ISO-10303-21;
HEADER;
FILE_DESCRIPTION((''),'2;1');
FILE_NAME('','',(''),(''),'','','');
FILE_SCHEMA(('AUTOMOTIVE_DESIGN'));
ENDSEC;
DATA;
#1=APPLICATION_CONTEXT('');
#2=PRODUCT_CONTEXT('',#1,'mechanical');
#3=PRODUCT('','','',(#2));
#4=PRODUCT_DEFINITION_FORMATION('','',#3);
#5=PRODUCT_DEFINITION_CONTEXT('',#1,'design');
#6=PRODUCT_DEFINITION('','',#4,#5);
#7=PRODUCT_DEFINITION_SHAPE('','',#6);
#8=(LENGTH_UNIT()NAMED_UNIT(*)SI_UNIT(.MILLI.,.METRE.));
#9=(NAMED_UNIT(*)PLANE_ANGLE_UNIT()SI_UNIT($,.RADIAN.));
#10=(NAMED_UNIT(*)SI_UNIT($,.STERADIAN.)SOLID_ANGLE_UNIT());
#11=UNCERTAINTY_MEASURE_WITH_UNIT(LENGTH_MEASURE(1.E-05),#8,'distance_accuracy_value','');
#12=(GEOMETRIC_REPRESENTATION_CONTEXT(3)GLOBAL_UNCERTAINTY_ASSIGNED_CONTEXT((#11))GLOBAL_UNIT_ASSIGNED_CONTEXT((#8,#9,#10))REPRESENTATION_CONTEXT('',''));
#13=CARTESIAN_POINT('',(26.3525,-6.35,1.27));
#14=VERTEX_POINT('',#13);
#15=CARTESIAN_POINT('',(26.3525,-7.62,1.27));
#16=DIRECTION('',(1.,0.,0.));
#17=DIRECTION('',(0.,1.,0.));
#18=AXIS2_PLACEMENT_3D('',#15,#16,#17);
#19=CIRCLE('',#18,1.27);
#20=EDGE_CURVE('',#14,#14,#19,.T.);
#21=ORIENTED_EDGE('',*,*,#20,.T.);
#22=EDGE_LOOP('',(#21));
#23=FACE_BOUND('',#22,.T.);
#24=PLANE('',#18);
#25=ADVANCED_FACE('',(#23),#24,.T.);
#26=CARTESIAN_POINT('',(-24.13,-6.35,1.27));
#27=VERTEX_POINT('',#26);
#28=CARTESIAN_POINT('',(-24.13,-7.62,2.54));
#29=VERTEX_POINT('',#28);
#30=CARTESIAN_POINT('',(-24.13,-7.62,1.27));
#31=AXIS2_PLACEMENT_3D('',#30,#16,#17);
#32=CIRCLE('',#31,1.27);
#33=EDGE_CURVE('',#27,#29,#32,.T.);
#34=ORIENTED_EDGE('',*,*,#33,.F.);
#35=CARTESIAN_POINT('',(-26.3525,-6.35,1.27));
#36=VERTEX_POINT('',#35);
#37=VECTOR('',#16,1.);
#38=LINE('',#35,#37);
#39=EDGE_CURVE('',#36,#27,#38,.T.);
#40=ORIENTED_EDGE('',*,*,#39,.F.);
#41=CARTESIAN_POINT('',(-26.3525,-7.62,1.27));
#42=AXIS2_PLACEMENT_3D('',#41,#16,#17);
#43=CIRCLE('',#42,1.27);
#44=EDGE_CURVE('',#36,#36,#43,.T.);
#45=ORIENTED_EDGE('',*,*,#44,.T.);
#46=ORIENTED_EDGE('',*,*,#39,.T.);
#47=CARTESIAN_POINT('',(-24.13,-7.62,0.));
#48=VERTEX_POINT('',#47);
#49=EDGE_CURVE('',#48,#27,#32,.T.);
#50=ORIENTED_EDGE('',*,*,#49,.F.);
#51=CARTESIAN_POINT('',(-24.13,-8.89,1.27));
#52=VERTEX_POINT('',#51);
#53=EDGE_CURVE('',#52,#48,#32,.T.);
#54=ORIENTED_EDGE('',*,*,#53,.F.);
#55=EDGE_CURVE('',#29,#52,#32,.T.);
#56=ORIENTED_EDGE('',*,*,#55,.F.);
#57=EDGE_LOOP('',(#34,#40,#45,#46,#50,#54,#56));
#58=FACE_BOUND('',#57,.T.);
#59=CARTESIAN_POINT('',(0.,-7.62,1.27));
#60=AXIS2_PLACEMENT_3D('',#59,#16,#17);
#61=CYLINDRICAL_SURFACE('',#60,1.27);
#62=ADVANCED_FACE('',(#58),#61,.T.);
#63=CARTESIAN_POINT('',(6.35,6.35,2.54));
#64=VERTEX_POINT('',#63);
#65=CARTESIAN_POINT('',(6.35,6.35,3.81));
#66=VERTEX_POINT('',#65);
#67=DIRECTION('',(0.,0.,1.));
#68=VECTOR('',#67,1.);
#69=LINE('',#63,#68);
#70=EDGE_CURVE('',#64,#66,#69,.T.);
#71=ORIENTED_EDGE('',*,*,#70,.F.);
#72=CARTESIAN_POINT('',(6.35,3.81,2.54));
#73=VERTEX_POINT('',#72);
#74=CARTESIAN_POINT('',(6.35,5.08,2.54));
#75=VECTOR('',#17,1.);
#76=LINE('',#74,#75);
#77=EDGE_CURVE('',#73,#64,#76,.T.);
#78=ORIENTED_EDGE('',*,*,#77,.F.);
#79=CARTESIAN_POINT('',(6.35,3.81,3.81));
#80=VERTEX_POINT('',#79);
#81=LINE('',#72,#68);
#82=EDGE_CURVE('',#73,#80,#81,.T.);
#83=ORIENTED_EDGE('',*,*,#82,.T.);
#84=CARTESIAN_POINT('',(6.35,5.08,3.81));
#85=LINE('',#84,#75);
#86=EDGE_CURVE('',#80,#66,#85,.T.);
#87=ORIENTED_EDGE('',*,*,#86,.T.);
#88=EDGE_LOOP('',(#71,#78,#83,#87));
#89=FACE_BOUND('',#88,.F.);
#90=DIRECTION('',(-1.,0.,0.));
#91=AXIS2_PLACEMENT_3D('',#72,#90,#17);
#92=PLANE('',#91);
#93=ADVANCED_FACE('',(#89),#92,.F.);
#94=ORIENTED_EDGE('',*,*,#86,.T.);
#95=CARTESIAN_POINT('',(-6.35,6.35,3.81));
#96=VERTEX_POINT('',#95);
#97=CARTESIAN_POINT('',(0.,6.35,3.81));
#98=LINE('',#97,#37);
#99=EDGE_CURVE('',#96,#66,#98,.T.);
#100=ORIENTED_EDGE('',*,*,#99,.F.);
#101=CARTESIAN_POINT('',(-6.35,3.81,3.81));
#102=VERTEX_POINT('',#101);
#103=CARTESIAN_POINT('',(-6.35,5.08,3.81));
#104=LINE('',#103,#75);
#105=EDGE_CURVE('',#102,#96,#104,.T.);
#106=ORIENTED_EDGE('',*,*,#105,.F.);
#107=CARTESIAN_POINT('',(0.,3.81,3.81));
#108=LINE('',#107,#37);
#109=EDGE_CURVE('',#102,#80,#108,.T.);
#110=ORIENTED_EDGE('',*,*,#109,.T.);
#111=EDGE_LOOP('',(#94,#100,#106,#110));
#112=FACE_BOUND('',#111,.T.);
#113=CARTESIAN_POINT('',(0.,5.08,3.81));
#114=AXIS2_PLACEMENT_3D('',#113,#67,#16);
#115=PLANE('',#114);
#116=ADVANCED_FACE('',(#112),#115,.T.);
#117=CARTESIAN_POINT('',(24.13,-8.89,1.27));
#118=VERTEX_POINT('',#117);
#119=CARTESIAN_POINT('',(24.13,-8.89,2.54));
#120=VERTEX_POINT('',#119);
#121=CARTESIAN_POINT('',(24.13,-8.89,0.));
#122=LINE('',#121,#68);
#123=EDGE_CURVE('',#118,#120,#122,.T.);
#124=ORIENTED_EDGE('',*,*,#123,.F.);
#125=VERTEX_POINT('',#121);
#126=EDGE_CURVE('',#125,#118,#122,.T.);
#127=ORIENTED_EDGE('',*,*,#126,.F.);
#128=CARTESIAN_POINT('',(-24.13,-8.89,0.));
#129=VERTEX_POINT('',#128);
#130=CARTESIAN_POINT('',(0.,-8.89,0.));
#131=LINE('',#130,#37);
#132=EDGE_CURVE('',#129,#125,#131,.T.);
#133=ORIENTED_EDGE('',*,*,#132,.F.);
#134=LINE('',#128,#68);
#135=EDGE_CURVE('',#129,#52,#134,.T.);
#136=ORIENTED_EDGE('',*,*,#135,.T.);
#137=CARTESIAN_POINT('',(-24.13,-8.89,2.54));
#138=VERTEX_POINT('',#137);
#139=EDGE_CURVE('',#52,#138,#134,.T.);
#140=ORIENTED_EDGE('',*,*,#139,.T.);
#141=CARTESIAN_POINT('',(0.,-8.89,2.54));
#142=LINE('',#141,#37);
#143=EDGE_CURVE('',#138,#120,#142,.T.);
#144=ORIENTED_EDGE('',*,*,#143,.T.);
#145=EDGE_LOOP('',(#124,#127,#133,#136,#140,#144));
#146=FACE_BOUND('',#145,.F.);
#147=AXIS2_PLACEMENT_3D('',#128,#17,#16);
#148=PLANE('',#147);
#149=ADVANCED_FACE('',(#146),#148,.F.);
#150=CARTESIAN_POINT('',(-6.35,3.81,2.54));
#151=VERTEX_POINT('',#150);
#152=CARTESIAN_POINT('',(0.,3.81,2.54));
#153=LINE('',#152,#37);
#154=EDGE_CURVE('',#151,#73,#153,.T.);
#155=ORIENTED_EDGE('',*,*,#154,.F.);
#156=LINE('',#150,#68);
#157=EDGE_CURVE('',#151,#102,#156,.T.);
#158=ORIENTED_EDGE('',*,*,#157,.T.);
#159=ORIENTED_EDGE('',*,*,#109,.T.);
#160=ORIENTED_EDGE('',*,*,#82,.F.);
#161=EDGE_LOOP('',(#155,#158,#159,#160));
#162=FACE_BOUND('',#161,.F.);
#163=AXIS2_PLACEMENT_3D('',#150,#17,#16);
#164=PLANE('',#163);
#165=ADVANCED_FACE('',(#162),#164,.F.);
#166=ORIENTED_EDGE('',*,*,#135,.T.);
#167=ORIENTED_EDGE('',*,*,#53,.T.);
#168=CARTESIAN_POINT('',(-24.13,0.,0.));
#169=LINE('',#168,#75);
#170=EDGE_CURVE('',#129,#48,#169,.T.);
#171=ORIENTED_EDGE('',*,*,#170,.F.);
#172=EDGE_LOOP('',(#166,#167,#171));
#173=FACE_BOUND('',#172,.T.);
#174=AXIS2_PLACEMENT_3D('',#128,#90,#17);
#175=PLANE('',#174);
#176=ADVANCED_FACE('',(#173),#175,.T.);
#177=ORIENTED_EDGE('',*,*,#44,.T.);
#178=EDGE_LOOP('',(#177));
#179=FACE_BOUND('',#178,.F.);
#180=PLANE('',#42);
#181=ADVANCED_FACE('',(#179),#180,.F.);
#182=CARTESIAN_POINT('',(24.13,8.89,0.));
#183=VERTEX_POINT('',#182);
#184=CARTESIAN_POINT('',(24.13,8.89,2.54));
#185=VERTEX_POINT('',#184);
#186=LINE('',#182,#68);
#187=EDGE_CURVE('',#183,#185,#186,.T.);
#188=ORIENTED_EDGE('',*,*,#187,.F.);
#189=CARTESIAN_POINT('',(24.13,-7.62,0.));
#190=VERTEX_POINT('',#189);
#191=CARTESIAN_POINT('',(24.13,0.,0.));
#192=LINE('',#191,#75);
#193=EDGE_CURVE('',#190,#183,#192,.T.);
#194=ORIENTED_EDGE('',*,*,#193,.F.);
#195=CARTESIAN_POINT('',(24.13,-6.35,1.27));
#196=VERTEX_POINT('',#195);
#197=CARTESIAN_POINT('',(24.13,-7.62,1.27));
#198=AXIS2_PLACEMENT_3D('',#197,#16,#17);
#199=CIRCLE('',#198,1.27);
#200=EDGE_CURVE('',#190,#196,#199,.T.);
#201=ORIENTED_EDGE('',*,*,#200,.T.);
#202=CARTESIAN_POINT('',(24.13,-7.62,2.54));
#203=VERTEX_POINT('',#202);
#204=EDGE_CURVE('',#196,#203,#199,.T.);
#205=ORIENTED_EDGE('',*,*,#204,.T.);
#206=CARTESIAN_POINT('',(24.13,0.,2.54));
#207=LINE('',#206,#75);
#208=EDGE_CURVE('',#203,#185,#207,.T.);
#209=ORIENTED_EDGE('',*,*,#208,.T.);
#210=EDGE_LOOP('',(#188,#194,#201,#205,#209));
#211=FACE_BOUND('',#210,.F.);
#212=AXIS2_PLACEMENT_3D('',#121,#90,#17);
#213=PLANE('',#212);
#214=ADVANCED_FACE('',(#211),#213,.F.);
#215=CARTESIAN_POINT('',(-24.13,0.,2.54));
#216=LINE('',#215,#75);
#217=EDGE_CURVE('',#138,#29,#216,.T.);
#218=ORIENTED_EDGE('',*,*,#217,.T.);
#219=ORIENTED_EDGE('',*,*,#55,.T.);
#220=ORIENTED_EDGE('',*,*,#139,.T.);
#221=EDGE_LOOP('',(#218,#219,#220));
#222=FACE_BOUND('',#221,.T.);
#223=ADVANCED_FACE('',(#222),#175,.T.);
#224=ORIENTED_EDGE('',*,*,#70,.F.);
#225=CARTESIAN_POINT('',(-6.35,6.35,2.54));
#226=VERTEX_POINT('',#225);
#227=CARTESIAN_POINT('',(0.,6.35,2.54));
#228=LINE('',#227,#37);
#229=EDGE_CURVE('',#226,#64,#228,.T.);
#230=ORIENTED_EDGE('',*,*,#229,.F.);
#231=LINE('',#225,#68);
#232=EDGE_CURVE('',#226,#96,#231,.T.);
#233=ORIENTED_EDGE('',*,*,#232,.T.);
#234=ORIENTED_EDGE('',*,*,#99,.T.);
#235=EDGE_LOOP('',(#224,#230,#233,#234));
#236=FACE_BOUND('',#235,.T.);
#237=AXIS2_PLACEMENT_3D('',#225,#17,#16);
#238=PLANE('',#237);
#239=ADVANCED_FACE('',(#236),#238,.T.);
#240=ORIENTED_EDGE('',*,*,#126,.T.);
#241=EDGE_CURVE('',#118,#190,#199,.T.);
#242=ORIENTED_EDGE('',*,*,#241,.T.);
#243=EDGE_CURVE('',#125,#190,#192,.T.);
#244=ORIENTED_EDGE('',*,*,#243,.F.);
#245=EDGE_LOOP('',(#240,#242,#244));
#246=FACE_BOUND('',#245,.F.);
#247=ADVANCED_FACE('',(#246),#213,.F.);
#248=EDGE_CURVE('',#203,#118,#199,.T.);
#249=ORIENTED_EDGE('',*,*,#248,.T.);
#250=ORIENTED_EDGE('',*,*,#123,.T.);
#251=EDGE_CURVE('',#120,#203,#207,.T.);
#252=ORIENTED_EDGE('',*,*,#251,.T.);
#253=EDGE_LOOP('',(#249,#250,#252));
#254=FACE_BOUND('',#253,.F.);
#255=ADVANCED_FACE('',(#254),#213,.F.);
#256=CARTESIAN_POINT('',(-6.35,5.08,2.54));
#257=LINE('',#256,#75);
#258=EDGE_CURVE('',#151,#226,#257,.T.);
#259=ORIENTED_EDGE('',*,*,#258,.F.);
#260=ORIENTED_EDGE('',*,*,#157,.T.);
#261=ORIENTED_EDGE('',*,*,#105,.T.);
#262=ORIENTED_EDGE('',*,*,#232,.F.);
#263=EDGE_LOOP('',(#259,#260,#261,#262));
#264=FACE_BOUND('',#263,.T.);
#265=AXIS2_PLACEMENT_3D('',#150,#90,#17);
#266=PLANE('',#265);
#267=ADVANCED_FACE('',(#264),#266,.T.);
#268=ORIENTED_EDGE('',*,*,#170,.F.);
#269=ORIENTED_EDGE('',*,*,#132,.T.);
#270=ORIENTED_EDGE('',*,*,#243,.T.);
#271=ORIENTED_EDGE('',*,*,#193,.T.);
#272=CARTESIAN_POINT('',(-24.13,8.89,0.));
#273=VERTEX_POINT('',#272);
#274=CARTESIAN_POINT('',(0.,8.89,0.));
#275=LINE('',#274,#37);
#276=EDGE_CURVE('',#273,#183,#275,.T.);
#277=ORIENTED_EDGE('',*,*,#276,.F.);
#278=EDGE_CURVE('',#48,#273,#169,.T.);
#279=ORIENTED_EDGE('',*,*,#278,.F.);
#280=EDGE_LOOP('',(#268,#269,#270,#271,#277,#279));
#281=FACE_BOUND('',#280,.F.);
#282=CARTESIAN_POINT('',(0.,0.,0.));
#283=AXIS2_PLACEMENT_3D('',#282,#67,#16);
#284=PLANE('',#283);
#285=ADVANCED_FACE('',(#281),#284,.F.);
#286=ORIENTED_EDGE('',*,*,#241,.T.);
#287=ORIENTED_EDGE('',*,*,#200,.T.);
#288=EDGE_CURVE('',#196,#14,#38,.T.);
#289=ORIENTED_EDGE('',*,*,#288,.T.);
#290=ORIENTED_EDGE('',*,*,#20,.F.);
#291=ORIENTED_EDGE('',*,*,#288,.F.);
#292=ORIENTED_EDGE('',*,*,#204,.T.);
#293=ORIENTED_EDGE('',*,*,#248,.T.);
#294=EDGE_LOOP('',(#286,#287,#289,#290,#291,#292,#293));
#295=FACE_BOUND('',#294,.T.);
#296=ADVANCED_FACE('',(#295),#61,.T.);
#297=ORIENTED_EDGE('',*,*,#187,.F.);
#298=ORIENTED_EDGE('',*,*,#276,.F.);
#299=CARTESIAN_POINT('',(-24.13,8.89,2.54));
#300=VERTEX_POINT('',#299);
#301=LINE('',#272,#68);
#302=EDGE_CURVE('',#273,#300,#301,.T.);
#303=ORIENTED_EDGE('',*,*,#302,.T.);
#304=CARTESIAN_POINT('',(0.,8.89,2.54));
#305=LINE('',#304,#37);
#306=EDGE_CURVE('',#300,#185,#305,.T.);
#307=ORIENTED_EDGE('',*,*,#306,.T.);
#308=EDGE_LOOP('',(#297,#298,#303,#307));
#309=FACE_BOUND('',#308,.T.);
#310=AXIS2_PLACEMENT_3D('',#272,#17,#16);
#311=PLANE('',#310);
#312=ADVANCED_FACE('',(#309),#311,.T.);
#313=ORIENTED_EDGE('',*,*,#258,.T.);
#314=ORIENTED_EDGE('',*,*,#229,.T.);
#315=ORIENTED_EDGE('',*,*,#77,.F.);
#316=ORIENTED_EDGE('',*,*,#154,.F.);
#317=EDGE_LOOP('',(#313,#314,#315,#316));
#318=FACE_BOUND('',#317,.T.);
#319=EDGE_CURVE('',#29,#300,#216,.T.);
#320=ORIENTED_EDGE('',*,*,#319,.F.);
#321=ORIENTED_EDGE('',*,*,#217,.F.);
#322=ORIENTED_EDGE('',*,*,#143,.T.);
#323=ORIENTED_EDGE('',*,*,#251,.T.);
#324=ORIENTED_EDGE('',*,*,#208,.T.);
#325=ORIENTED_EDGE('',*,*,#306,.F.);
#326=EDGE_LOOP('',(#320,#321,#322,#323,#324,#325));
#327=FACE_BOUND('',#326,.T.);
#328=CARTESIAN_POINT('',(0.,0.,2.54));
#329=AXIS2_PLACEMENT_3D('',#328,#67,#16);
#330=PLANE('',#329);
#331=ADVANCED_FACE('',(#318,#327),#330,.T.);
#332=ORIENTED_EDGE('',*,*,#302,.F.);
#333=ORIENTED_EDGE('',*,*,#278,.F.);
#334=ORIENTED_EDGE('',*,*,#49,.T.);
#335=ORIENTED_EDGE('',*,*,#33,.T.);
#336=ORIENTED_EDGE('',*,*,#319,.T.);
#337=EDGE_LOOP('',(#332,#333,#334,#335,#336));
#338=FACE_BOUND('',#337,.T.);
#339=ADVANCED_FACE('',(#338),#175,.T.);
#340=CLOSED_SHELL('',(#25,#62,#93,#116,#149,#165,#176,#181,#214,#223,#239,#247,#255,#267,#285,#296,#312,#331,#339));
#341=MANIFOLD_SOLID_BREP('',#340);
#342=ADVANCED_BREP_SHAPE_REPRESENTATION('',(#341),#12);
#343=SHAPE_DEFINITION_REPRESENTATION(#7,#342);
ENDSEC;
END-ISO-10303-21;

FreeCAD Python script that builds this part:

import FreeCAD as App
import Part
import Sketcher
from FreeCAD import Vector
Q = App.Units.Quantity


def add_polygon(sketch, points):
    """Adds a closed chain of lines whose ends are joined by coincident constraints."""
    first, n = sketch.GeometryCount, len(points)
    for a, b in zip(points, points[1:] + points[:1]):
        sketch.addGeometry(Part.LineSegment(App.Vector(*a, 0), App.Vector(*b, 0)), False)
    for i in range(n):
        sketch.addConstraint(Sketcher.Constraint("Coincident", first + i, 2, first + (i + 1) % n, 1))

doc = App.newDocument("Part")
params = doc.addObject("Spreadsheet::Sheet", "Params")
for row, (alias, value) in enumerate([
    ("sketch1_width", "1.9 in"),
    ("sketch1_height", "0.7 in"),
    ("pad1_length", "0.1 in"),
    ("sketch2_diameter", "0.1 in"),
    ("pad2_length", "2.075 in"),
    ("sketch3_width", "0.5 in"),
    ("sketch3_height", "0.1 in"),
    ("pad3_length", "0.05 in"),
], start=1):
    params.set(f"A{row}", alias)
    params.set(f"B{row}", "=" + value)
    params.setAlias(f"B{row}", alias)

body = doc.addObject("PartDesign::Body", "Body")

sketch1 = body.newObject("Sketcher::SketchObject", "Sketch")
sketch1.AttachmentSupport = (doc.getObject("XY_Plane"), [""])
sketch1.MapMode = "FlatFace"
add_polygon(sketch1, [(-24, 9), (-24, -9), (24, -9), (24, 9)])
sketch1.addConstraint([
    Sketcher.Constraint("Vertical", 0),
    Sketcher.Constraint("Horizontal", 1),
    Sketcher.Constraint("Vertical", 2),
    Sketcher.Constraint("Horizontal", 3),
    Sketcher.Constraint("Symmetric", 0, 2, 2, 2, -1, 1),
    Sketcher.Constraint("DistanceX", 1, 1, 1, 2, Q("1.9 in")),
    Sketcher.Constraint("DistanceY", 0, 2, 0, 1, Q("0.7 in")),
])
sketch1.setExpression("Constraints[9]", "Params.sketch1_width")
sketch1.setExpression("Constraints[10]", "Params.sketch1_height")
pad1 = body.newObject("PartDesign::Pad", "Pad")
pad1.Profile = sketch1
pad1.setExpression("Length", "Params.pad1_length")

sketch2 = body.newObject("Sketcher::SketchObject", "Sketch001")
sketch2.AttachmentSupport = (doc.getObject("YZ_Plane"), [""])
sketch2.MapMode = "FlatFace"
sketch2.addGeometry(Part.Circle(Vector(-7.6, 1.3, 0), Vector(0, 0, 1), 1.3), False)
sketch2.addConstraint([
    Sketcher.Constraint("Diameter", 0, Q("0.1 in")),
    Sketcher.Constraint("DistanceX", 0, 3, -1, 1, Q("0.3 in")),
    Sketcher.Constraint("DistanceY", -1, 1, 0, 3, Q("0.05 in")),
])
sketch2.setExpression("Constraints[0]", "Params.sketch2_diameter")
pad2 = body.newObject("PartDesign::Pad", "Pad001")
pad2.Profile = sketch2
pad2.setExpression("Length", "Params.pad2_length")
pad2.Midplane = True

sketch3 = body.newObject("Sketcher::SketchObject", "Sketch002")
sketch3.AttachmentSupport = (doc.getObject("XY_Plane"), [""])
sketch3.MapMode = "FlatFace"
sketch3.AttachmentOffset = App.Placement(Vector(0, 0, 0.1 * 25.4), App.Rotation())
add_polygon(sketch3, [(-6.3, 6.3), (-6.3, 3.8), (6.3, 3.8), (6.3, 6.3)])
sketch3.addConstraint([
    Sketcher.Constraint("Vertical", 0),
    Sketcher.Constraint("Horizontal", 1),
    Sketcher.Constraint("Vertical", 2),
    Sketcher.Constraint("Horizontal", 3),
    Sketcher.Constraint("DistanceX", 1, 1, 1, 2, Q("0.5 in")),
    Sketcher.Constraint("DistanceY", 0, 2, 0, 1, Q("0.1 in")),
    Sketcher.Constraint("DistanceX", 0, 2, -1, 1, Q("0.25 in")),
    Sketcher.Constraint("DistanceY", -1, 1, 0, 2, Q("0.15 in")),
])
sketch3.setExpression("Constraints[8]", "Params.sketch3_width")
sketch3.setExpression("Constraints[9]", "Params.sketch3_height")
pad3 = body.newObject("PartDesign::Pad", "Pad002")
pad3.Profile = sketch3
pad3.setExpression("Length", "Params.pad3_length")

doc.recompute()
